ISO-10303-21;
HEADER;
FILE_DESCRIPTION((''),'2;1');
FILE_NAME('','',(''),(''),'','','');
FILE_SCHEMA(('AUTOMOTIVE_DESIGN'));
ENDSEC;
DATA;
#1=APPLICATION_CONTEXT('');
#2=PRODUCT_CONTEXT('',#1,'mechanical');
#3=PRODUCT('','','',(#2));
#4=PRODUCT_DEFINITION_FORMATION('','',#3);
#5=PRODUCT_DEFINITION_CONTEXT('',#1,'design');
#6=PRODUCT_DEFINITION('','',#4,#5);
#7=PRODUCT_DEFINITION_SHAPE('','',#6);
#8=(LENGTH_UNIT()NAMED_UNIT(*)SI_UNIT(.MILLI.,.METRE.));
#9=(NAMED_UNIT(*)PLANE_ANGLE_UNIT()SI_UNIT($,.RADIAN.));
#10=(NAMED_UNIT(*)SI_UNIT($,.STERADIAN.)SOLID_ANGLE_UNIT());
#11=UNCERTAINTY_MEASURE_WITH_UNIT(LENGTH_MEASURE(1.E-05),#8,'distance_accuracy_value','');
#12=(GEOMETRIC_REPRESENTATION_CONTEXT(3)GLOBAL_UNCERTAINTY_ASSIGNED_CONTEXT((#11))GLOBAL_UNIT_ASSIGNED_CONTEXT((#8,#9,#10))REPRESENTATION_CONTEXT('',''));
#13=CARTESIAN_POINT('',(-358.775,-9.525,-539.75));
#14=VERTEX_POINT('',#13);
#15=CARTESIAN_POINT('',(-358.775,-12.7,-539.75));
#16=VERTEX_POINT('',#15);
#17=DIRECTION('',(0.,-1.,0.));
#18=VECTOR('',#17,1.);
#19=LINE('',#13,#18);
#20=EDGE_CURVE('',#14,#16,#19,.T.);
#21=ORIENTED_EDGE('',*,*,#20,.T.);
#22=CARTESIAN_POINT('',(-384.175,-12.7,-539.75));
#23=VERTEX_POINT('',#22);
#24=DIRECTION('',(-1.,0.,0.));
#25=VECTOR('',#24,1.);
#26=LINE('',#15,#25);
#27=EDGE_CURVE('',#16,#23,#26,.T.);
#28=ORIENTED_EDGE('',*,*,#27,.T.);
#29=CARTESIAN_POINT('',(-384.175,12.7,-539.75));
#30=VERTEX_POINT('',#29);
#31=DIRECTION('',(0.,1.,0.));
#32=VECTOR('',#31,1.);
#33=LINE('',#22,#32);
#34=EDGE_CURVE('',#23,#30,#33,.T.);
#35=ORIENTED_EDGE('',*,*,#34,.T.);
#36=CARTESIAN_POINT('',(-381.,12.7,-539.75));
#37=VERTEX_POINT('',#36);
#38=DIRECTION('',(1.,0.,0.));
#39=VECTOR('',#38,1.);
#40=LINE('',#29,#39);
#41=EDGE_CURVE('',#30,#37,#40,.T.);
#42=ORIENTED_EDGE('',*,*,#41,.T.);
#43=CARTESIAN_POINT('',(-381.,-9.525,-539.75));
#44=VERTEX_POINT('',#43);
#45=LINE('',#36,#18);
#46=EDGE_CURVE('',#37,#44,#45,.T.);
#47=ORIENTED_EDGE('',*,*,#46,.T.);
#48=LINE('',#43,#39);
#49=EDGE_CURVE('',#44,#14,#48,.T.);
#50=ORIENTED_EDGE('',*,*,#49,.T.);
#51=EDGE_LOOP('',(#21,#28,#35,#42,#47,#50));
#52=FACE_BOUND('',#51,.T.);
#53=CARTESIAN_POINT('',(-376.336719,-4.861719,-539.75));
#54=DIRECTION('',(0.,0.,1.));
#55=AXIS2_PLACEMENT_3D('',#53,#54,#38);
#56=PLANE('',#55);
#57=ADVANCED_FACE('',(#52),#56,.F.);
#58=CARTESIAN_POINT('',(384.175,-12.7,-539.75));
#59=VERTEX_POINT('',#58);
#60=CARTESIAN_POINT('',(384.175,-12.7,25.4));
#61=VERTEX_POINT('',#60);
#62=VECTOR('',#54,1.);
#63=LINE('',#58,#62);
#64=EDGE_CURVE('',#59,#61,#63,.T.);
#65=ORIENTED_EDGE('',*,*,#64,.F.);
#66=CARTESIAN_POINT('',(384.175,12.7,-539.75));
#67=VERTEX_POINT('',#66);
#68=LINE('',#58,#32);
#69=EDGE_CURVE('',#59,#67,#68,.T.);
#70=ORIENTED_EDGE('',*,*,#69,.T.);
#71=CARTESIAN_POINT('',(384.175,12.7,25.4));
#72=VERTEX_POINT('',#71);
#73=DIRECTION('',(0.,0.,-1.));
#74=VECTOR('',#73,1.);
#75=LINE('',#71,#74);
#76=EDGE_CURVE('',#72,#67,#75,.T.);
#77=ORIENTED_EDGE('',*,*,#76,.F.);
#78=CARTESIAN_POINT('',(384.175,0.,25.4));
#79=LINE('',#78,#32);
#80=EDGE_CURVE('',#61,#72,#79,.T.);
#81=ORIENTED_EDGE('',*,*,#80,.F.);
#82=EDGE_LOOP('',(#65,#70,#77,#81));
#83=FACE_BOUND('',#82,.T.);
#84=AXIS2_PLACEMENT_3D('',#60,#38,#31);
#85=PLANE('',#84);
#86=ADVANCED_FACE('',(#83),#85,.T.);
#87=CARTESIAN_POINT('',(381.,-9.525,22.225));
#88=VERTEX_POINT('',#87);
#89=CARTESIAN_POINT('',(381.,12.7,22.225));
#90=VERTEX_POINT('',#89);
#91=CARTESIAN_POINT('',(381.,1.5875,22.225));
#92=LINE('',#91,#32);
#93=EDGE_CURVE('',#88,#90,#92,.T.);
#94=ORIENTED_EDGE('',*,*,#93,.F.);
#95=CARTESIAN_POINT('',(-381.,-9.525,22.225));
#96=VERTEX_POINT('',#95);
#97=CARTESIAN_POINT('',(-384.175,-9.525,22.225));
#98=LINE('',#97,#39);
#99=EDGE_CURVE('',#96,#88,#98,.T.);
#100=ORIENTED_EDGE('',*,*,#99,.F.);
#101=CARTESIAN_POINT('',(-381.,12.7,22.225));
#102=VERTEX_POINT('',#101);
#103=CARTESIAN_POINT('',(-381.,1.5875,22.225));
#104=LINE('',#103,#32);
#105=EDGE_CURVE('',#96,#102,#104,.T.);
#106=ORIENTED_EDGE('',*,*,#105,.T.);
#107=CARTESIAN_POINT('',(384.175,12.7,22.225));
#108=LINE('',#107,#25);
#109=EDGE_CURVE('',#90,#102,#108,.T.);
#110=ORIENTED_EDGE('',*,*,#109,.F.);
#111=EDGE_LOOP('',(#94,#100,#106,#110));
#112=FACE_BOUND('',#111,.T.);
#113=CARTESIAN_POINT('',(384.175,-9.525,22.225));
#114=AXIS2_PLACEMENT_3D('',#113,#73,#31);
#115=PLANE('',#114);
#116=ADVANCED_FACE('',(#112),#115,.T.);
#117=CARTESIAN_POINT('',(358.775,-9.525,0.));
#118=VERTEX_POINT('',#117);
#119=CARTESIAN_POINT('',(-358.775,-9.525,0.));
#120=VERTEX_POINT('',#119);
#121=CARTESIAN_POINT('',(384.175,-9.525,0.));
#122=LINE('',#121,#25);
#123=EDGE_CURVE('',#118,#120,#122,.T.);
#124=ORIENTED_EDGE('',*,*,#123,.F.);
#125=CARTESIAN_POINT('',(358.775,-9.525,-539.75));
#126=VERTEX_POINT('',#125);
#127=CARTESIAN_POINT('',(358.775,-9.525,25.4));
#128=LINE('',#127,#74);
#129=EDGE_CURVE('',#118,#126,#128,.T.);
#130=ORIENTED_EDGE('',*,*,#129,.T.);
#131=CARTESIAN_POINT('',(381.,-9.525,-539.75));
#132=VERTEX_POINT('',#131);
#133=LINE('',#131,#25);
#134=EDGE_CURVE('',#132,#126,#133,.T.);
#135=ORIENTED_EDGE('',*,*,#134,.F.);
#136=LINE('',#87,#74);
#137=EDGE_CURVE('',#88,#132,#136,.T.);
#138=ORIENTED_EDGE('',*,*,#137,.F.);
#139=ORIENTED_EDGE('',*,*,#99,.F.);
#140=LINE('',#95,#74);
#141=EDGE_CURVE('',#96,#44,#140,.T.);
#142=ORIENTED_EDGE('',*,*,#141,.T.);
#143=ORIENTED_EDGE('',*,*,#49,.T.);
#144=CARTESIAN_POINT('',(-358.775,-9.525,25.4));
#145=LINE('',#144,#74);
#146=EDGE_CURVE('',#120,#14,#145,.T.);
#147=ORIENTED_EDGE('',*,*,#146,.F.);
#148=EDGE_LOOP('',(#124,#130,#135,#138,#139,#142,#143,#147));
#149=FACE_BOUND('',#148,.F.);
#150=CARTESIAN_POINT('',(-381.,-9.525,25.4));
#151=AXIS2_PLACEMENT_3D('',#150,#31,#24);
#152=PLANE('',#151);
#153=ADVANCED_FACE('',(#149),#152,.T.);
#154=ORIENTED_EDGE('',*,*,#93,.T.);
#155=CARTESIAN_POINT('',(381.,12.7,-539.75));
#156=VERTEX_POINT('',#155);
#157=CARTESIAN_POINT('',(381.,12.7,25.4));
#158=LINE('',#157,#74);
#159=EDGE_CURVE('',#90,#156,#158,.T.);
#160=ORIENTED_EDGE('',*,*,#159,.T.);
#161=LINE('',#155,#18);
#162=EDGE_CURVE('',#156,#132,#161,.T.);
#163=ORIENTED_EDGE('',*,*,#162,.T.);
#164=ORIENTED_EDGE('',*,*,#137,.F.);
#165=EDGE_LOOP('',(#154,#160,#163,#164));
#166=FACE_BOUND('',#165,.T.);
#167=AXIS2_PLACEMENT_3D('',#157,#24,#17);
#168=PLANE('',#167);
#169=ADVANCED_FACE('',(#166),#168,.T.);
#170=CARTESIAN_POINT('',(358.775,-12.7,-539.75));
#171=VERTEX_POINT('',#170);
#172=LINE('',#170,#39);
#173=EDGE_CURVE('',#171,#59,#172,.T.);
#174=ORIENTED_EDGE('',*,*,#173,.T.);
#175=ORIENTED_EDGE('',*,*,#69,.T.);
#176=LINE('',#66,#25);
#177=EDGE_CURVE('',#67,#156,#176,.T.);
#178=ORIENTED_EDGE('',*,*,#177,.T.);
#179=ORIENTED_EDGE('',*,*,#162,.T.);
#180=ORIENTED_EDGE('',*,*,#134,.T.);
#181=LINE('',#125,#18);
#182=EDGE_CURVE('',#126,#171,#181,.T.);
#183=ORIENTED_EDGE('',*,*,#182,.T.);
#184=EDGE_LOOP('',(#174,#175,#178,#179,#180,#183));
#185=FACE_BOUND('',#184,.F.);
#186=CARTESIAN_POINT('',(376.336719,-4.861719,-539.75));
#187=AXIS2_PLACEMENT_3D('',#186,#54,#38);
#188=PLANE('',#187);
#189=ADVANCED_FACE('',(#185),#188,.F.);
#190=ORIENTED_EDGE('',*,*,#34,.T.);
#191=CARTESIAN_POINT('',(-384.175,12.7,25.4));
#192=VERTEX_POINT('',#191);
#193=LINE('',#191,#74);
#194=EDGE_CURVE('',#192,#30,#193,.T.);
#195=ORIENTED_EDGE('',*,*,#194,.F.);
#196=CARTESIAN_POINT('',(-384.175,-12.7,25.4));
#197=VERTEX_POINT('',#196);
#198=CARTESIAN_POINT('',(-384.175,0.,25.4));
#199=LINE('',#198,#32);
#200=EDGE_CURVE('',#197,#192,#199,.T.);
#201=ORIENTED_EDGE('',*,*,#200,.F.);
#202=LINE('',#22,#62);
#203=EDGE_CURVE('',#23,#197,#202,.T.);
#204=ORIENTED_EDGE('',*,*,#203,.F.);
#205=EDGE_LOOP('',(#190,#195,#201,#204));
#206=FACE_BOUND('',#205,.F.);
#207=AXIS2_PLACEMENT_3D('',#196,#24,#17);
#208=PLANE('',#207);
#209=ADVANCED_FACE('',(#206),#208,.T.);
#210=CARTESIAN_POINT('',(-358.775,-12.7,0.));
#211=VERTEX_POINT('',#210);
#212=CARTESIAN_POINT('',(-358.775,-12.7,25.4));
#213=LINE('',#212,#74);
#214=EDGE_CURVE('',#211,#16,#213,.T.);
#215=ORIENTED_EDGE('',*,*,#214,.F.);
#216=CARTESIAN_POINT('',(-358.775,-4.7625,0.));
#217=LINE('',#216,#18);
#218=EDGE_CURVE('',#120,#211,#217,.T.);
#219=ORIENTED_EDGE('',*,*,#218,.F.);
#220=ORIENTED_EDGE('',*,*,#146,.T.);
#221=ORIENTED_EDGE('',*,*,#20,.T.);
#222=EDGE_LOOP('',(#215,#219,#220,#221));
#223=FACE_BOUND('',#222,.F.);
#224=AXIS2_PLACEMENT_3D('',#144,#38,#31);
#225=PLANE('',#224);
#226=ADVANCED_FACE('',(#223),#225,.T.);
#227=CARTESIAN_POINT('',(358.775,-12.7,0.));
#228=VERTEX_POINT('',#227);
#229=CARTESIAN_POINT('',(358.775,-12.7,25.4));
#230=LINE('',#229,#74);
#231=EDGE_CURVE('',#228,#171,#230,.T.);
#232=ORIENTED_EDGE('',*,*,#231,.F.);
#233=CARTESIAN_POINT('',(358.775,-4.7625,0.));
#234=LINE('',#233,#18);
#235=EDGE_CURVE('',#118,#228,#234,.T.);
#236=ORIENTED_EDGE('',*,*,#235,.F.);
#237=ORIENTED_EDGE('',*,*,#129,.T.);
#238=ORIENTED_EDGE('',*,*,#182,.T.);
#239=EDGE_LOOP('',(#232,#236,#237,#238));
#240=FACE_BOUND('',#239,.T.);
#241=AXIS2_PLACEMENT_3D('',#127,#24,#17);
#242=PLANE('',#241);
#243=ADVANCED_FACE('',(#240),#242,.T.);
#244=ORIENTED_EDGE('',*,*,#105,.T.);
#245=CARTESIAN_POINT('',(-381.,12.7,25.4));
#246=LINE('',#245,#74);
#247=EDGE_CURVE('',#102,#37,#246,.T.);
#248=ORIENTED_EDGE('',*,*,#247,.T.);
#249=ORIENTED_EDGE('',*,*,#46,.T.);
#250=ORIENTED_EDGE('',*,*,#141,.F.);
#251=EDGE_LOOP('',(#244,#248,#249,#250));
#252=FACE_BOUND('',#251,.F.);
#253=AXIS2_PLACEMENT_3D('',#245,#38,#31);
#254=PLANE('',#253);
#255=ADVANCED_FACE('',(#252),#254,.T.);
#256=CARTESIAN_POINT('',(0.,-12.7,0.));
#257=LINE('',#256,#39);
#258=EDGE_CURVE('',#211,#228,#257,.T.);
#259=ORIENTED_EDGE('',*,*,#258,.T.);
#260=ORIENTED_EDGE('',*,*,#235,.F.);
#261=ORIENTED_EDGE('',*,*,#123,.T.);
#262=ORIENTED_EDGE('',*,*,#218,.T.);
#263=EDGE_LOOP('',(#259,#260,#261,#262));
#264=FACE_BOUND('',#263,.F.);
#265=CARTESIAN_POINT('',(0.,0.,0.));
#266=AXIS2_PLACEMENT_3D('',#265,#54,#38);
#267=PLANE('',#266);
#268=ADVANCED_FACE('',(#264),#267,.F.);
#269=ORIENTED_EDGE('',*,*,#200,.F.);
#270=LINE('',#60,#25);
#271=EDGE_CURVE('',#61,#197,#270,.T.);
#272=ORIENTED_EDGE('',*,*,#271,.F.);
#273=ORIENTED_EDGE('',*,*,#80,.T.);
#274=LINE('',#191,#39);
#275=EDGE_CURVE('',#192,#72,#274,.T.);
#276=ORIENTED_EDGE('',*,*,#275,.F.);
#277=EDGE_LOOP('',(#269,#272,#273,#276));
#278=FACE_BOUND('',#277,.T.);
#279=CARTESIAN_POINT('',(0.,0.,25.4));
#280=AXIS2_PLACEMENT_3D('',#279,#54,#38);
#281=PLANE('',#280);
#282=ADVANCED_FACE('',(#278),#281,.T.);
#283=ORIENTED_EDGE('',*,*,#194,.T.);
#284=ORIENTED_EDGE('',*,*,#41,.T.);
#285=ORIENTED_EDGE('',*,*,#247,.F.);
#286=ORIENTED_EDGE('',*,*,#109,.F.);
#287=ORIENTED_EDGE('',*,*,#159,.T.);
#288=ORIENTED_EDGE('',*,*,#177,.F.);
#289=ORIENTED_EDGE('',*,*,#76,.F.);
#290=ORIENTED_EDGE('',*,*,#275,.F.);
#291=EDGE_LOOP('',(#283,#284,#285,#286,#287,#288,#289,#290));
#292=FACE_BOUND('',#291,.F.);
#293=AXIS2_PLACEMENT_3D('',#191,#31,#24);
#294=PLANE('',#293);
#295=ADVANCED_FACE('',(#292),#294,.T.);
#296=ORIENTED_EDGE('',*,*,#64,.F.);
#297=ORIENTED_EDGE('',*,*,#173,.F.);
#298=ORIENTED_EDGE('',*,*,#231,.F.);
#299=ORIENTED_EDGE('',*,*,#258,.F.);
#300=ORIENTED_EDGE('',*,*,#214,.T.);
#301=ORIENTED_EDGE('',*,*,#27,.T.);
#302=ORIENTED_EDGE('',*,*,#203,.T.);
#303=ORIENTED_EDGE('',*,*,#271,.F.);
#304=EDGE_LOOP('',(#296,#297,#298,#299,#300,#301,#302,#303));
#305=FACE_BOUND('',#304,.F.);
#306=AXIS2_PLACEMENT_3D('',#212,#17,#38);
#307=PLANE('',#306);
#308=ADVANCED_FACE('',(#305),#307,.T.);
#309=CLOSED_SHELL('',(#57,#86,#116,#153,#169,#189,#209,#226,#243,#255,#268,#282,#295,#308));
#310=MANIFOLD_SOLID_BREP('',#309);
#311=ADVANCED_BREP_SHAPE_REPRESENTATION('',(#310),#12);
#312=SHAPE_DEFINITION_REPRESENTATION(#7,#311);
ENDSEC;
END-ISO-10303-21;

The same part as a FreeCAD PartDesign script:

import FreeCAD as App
import Part
import Sketcher
from FreeCAD import Vector
Q = App.Units.Quantity


def add_polygon(sketch, points):
    """Adds a closed chain of lines whose ends are joined by coincident constraints."""
    first, n = sketch.GeometryCount, len(points)
    for a, b in zip(points, points[1:] + points[:1]):
        sketch.addGeometry(Part.LineSegment(App.Vector(*a, 0), App.Vector(*b, 0)), False)
    for i in range(n):
        sketch.addConstraint(Sketcher.Constraint("Coincident", first + i, 2, first + (i + 1) % n, 1))

doc = App.newDocument("Part")
body = doc.addObject("PartDesign::Body", "Body")

# Sketch on XY plane
sketch1 = body.newObject("Sketcher::SketchObject", "Sketch")
sketch1.AttachmentSupport = (doc.getObject("XY_Plane"), [""])
sketch1.MapMode = "FlatFace"
add_polygon(sketch1, [(-384, 13), (-384, -13), (384, -13), (384, 13)])  # lines 0-3
sketch1.addConstraint([
    Sketcher.Constraint("Vertical", 0),
    Sketcher.Constraint("Horizontal", 1),
    Sketcher.Constraint("Vertical", 2),
    Sketcher.Constraint("Horizontal", 3),
    Sketcher.Constraint("Symmetric", 0, 2, 2, 2, -1, 1),
    Sketcher.Constraint("DistanceY", 0, 2, 0, 1, Q("1 in")),
    Sketcher.Constraint("DistanceX", 1, 1, 1, 2, Q("30.25 in")),
])
pad1 = body.newObject("PartDesign::Pad", "Pad")
pad1.Profile = sketch1
pad1.Length = Q("1 in")

# Sketch on YZ plane
sketch2 = body.newObject("Sketcher::SketchObject", "Sketch001")
sketch2.AttachmentSupport = (doc.getObject("YZ_Plane"), [""])
sketch2.MapMode = "FlatFace"
sketch2.AttachmentOffset = App.Placement(Vector(0, 0, 15.125 * 25.4), App.Rotation())
add_polygon(sketch2, [(-10, 22), (-10, 0), (13, 0), (13, 22)])  # lines 0-3
sketch2.addConstraint([
    Sketcher.Constraint("Vertical", 0),
    Sketcher.Constraint("Horizontal", 1),
    Sketcher.Constraint("Vertical", 2),
    Sketcher.Constraint("Horizontal", 3),
    Sketcher.Constraint("PointOnObject", 0, 2, -1),
    Sketcher.Constraint("Equal", 3, 0),
    Sketcher.Constraint("DistanceX", -1, 1, 1, 2, Q("0.5 in")),
    Sketcher.Constraint("DistanceX", 1, 1, 1, 2, Q("0.875 in")),
])
pocket1 = body.newObject("PartDesign::Pocket", "Pocket")
pocket1.Profile = sketch2
pocket1.Type = "ThroughAll"

# Sketch on XY plane
sketch3 = body.newObject("Sketcher::SketchObject", "Sketch002")
sketch3.AttachmentSupport = (doc.getObject("XY_Plane"), [""])
sketch3.MapMode = "FlatFace"
sketch3.AttachmentOffset = App.Placement(Vector(0, 0, 1 * 25.4), App.Rotation())
add_polygon(sketch3, [(384.2, -12.7), (384.2, 12.7), (381, 12.7), (381, -9.5), (358.8, -9.5), (358.8, -12.7)])  # lines 0-5
sketch3.addConstraint([
    Sketcher.Constraint("Vertical", 0),
    Sketcher.Constraint("Horizontal", 1),
    Sketcher.Constraint("Vertical", 2),
    Sketcher.Constraint("Horizontal", 3),
    Sketcher.Constraint("Vertical", 4),
    Sketcher.Constraint("Horizontal", 5),
    Sketcher.Constraint("Equal", 5, 0),
    Sketcher.Constraint("Equal", 3, 2),
    Sketcher.Constraint("DistanceX", 5, 1, 5, 2, Q("1 in")),
    Sketcher.Constraint("DistanceX", -1, 1, 1, 2, Q("15 in")),
    Sketcher.Constraint("DistanceY", -1, 1, 0, 2, Q("0.5 in")),
    Sketcher.Constraint("DistanceX", 1, 2, 1, 1, Q("0.125 in")),
])
pad2 = body.newObject("PartDesign::Pad", "Pad001")
pad2.Profile = sketch3
pad2.Length = Q("22.25 in")
pad2.Reversed = True
body2 = doc.addObject("PartDesign::Body", "Body001")
doc.recompute()

body2.BaseFeature = body
doc.recompute()

mirroring = doc.addObject("Part::Mirroring", "Mirroring")
mirroring.Source = body
mirroring.Base = Vector(0, 0, 0)
mirroring.Normal = Vector(1, 0, 0)
body3 = doc.addObject("PartDesign::Body", "Body002")
body3.BaseFeature = mirroring
boolean = body2.newObject("PartDesign::Boolean", "Boolean")
boolean.Type = "Fuse"
boolean.addObjects([body3])
doc.recompute()
mirroring.Visibility = False

doc.recompute()
